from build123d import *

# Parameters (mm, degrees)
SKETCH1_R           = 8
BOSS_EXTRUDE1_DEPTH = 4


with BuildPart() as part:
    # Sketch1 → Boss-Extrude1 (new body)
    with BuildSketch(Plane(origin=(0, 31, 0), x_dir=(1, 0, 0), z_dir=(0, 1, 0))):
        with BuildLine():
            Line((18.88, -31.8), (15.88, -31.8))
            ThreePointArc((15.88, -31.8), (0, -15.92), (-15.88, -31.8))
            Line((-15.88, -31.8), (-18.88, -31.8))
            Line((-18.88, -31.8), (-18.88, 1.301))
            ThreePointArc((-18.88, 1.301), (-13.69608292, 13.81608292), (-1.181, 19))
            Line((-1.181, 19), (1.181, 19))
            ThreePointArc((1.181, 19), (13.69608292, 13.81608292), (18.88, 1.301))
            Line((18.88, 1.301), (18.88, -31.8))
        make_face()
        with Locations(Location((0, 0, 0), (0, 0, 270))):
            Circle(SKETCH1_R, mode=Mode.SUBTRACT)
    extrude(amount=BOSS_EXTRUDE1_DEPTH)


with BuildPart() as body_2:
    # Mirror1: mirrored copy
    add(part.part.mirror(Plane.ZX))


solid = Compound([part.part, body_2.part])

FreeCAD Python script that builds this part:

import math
import FreeCAD as App
import Part
import Sketcher

V = App.Vector
Q = App.Units.Quantity

doc = App.newDocument("Part")
body = doc.addObject("PartDesign::Body", "Body")

sketch1 = body.newObject("Sketcher::SketchObject", "Sketch")
sketch1.AttachmentSupport = (doc.getObject("XZ_Plane"), [""])
sketch1.MapMode = "FlatFace"
sketch1.AttachmentOffset = App.Placement(V(0, 0, -31), App.Rotation())
sketch1.addGeometry(Part.LineSegment(V(15.88, 31.8, 0), V(18.88, 31.8, 0)), False)
sketch1.addGeometry(Part.LineSegment(V(18.88, 31.8, 0), V(18.88, -1.301, 0)), False)
sketch1.addGeometry(Part.ArcOfCircle(Part.Circle(V(1.181, -1.301, 0), V(0, 0, 1), 17.699), math.radians(-90), math.radians(0)), False)
sketch1.addGeometry(Part.LineSegment(V(1.181, -19, 0), V(-1.181, -19, 0)), False)
sketch1.addGeometry(Part.ArcOfCircle(Part.Circle(V(-1.181, -1.301, 0), V(0, 0, 1), 17.699), math.radians(-180), math.radians(-90)), False)
sketch1.addGeometry(Part.LineSegment(V(-18.88, -1.301, 0), V(-18.88, 31.8, 0)), False)
sketch1.addGeometry(Part.LineSegment(V(-18.88, 31.8, 0), V(-15.88, 31.8, 0)), False)
sketch1.addGeometry(Part.ArcOfCircle(Part.Circle(V(0, 31.8, 0), V(0, 0, 1), 15.88), math.radians(180), math.radians(360)), False)
sketch1.addGeometry(Part.Circle(V(0, 0, 0), V(0, 0, 1), 8), False)
sketch1.addConstraint(Sketcher.Constraint("Coincident", 0, 2, 1, 1))
sketch1.addConstraint(Sketcher.Constraint("Tangent", 1, 2, 2, 2))
sketch1.addConstraint(Sketcher.Constraint("Tangent", 2, 1, 3, 1))
sketch1.addConstraint(Sketcher.Constraint("Tangent", 3, 2, 4, 2))
sketch1.addConstraint(Sketcher.Constraint("Tangent", 4, 1, 5, 1))
sketch1.addConstraint(Sketcher.Constraint("Coincident", 5, 2, 6, 1))
sketch1.addConstraint(Sketcher.Constraint("Coincident", 6, 2, 7, 1))
sketch1.addConstraint(Sketcher.Constraint("Coincident", 7, 2, 0, 1))
sketch1.addConstraint(Sketcher.Constraint("Horizontal", 0))
sketch1.addConstraint(Sketcher.Constraint("Vertical", 1))
sketch1.addConstraint(Sketcher.Constraint("Horizontal", 3))
sketch1.addConstraint(Sketcher.Constraint("Vertical", 5))
sketch1.addConstraint(Sketcher.Constraint("Horizontal", 6))
sketch1.addConstraint(Sketcher.Constraint("Coincident", 8, 3, -1, 1))
sketch1.addConstraint(Sketcher.Constraint("Equal", 2, 4))
sketch1.addConstraint(Sketcher.Constraint("Symmetric", 0, 2, 5, 2, -2))
sketch1.addConstraint(Sketcher.Constraint("PointOnObject", 7, 3, -2))
sketch1.addConstraint(Sketcher.Constraint("Horizontal", 7, 3, 0, 2))
sketch1.addConstraint(Sketcher.Constraint("Diameter", 8, Q("16 mm")))
sketch1.addConstraint(Sketcher.Constraint("DistanceX", 0, 1, 0, 2, Q("3 mm")))
sketch1.addConstraint(Sketcher.Constraint("Radius", 7, Q("15.88 mm")))
sketch1.addConstraint(Sketcher.Constraint("DistanceY", 2, 1, -1, 1, Q("19 mm")))
sketch1.addConstraint(Sketcher.Constraint("Radius", 2, Q("17.699 mm")))
sketch1.addConstraint(Sketcher.Constraint("DistanceY", -1, 1, 7, 3, Q("31.8 mm")))
pad1 = body.newObject("PartDesign::Pad", "Pad")
pad1.Profile = sketch1
pad1.Length = 4
pad1.Reversed = True
body2 = doc.addObject("PartDesign::Body", "Body001")
doc.recompute()

mirroring = doc.addObject("Part::Mirroring", "Mirroring")
mirroring.Source = body
mirroring.Base = V(0, 0, 0)
mirroring.Normal = V(0, 1, 0)
body2.BaseFeature = mirroring
doc.recompute()
mirroring.Visibility = False

doc.recompute()
